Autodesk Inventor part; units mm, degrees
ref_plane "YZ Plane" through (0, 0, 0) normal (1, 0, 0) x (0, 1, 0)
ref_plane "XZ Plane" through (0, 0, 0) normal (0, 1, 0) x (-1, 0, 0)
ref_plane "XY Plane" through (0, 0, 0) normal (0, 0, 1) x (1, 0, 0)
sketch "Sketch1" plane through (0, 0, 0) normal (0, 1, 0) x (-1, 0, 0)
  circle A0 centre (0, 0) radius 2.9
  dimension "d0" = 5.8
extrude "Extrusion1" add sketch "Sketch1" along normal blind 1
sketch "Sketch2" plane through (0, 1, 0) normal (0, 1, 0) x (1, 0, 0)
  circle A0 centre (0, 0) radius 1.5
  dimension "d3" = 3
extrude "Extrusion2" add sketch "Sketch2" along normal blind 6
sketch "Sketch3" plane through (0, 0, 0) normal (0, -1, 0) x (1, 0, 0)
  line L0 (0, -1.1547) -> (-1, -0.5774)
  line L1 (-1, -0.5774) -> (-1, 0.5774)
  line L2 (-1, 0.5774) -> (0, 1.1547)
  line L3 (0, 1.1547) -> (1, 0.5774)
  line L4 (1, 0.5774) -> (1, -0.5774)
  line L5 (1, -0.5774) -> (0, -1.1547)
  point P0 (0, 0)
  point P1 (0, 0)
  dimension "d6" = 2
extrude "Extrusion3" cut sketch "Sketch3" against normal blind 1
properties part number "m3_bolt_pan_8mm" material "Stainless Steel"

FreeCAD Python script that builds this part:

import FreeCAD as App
import Part
import Sketcher
from FreeCAD import Vector
Q = App.Units.Quantity


def add_polygon(sketch, points):
    """Adds a closed chain of lines whose ends are joined by coincident constraints."""
    first, n = sketch.GeometryCount, len(points)
    for a, b in zip(points, points[1:] + points[:1]):
        sketch.addGeometry(Part.LineSegment(App.Vector(*a, 0), App.Vector(*b, 0)), False)
    for i in range(n):
        sketch.addConstraint(Sketcher.Constraint("Coincident", first + i, 2, first + (i + 1) % n, 1))

doc = App.newDocument("Part")
body = doc.addObject("PartDesign::Body", "Body")

sketch1 = body.newObject("Sketcher::SketchObject", "Sketch")
sketch1.AttachmentSupport = (doc.getObject("XZ_Plane"), [""])
sketch1.MapMode = "FlatFace"
sketch1.addGeometry(Part.Circle(Vector(0, 0, 0), Vector(0, 0, 1), 2.9), False)
sketch1.addConstraint([
    Sketcher.Constraint("Coincident", 0, 3, -1, 1),
    Sketcher.Constraint("Diameter", 0, Q("5.8 mm")),
])
pad1 = body.newObject("PartDesign::Pad", "Pad")
pad1.Profile = sketch1
pad1.Length = 1
pad1.Reversed = True

sketch2 = body.newObject("Sketcher::SketchObject", "Sketch001")
sketch2.AttachmentSupport = (doc.getObject("XZ_Plane"), [""])
sketch2.MapMode = "FlatFace"
sketch2.AttachmentOffset = App.Placement(Vector(0, 0, -1), App.Rotation())
sketch2.addGeometry(Part.Circle(Vector(0, 0, 0), Vector(0, 0, 1), 1.5), False)
sketch2.addConstraint([
    Sketcher.Constraint("Coincident", 0, 3, -1, 1),
    Sketcher.Constraint("Diameter", 0, Q("3 mm")),
])
pad2 = body.newObject("PartDesign::Pad", "Pad001")
pad2.Profile = sketch2
pad2.Length = 6
pad2.Reversed = True

sketch3 = body.newObject("Sketcher::SketchObject", "Sketch002")
sketch3.AttachmentSupport = (doc.getObject("XZ_Plane"), [""])
sketch3.MapMode = "FlatFace"
add_polygon(sketch3, [(-1, -0.5774), (0, -1.1547), (1, -0.5774), (1, 0.5774), (0, 1.1547), (-1, 0.5774)])
sketch3.addConstraint([
    Sketcher.Constraint("Vertical", 2),
    Sketcher.Constraint("Vertical", 5),
    Sketcher.Constraint("Symmetric", 0, 2, 3, 2, -1, 1),
    Sketcher.Constraint("Symmetric", 1, 2, 4, 2, -1, 1),
    Sketcher.Constraint("PointOnObject", 0, 2, -2),
    Sketcher.Constraint("Parallel", 0, 3),
    Sketcher.Constraint("Horizontal", 2, 2, 4, 2),
    Sketcher.Constraint("DistanceX", 4, 2, 2, 2, Q("2 mm")),
    Sketcher.Constraint("DistanceY", 2, 1, 2, 2, Q("1.1548 mm")),
    Sketcher.Constraint("DistanceY", 0, 2, 2, 2, Q("1.732 mm")),
])
pocket1 = body.newObject("PartDesign::Pocket", "Pocket")
pocket1.Profile = sketch3
pocket1.Length = 1

doc.recompute()
